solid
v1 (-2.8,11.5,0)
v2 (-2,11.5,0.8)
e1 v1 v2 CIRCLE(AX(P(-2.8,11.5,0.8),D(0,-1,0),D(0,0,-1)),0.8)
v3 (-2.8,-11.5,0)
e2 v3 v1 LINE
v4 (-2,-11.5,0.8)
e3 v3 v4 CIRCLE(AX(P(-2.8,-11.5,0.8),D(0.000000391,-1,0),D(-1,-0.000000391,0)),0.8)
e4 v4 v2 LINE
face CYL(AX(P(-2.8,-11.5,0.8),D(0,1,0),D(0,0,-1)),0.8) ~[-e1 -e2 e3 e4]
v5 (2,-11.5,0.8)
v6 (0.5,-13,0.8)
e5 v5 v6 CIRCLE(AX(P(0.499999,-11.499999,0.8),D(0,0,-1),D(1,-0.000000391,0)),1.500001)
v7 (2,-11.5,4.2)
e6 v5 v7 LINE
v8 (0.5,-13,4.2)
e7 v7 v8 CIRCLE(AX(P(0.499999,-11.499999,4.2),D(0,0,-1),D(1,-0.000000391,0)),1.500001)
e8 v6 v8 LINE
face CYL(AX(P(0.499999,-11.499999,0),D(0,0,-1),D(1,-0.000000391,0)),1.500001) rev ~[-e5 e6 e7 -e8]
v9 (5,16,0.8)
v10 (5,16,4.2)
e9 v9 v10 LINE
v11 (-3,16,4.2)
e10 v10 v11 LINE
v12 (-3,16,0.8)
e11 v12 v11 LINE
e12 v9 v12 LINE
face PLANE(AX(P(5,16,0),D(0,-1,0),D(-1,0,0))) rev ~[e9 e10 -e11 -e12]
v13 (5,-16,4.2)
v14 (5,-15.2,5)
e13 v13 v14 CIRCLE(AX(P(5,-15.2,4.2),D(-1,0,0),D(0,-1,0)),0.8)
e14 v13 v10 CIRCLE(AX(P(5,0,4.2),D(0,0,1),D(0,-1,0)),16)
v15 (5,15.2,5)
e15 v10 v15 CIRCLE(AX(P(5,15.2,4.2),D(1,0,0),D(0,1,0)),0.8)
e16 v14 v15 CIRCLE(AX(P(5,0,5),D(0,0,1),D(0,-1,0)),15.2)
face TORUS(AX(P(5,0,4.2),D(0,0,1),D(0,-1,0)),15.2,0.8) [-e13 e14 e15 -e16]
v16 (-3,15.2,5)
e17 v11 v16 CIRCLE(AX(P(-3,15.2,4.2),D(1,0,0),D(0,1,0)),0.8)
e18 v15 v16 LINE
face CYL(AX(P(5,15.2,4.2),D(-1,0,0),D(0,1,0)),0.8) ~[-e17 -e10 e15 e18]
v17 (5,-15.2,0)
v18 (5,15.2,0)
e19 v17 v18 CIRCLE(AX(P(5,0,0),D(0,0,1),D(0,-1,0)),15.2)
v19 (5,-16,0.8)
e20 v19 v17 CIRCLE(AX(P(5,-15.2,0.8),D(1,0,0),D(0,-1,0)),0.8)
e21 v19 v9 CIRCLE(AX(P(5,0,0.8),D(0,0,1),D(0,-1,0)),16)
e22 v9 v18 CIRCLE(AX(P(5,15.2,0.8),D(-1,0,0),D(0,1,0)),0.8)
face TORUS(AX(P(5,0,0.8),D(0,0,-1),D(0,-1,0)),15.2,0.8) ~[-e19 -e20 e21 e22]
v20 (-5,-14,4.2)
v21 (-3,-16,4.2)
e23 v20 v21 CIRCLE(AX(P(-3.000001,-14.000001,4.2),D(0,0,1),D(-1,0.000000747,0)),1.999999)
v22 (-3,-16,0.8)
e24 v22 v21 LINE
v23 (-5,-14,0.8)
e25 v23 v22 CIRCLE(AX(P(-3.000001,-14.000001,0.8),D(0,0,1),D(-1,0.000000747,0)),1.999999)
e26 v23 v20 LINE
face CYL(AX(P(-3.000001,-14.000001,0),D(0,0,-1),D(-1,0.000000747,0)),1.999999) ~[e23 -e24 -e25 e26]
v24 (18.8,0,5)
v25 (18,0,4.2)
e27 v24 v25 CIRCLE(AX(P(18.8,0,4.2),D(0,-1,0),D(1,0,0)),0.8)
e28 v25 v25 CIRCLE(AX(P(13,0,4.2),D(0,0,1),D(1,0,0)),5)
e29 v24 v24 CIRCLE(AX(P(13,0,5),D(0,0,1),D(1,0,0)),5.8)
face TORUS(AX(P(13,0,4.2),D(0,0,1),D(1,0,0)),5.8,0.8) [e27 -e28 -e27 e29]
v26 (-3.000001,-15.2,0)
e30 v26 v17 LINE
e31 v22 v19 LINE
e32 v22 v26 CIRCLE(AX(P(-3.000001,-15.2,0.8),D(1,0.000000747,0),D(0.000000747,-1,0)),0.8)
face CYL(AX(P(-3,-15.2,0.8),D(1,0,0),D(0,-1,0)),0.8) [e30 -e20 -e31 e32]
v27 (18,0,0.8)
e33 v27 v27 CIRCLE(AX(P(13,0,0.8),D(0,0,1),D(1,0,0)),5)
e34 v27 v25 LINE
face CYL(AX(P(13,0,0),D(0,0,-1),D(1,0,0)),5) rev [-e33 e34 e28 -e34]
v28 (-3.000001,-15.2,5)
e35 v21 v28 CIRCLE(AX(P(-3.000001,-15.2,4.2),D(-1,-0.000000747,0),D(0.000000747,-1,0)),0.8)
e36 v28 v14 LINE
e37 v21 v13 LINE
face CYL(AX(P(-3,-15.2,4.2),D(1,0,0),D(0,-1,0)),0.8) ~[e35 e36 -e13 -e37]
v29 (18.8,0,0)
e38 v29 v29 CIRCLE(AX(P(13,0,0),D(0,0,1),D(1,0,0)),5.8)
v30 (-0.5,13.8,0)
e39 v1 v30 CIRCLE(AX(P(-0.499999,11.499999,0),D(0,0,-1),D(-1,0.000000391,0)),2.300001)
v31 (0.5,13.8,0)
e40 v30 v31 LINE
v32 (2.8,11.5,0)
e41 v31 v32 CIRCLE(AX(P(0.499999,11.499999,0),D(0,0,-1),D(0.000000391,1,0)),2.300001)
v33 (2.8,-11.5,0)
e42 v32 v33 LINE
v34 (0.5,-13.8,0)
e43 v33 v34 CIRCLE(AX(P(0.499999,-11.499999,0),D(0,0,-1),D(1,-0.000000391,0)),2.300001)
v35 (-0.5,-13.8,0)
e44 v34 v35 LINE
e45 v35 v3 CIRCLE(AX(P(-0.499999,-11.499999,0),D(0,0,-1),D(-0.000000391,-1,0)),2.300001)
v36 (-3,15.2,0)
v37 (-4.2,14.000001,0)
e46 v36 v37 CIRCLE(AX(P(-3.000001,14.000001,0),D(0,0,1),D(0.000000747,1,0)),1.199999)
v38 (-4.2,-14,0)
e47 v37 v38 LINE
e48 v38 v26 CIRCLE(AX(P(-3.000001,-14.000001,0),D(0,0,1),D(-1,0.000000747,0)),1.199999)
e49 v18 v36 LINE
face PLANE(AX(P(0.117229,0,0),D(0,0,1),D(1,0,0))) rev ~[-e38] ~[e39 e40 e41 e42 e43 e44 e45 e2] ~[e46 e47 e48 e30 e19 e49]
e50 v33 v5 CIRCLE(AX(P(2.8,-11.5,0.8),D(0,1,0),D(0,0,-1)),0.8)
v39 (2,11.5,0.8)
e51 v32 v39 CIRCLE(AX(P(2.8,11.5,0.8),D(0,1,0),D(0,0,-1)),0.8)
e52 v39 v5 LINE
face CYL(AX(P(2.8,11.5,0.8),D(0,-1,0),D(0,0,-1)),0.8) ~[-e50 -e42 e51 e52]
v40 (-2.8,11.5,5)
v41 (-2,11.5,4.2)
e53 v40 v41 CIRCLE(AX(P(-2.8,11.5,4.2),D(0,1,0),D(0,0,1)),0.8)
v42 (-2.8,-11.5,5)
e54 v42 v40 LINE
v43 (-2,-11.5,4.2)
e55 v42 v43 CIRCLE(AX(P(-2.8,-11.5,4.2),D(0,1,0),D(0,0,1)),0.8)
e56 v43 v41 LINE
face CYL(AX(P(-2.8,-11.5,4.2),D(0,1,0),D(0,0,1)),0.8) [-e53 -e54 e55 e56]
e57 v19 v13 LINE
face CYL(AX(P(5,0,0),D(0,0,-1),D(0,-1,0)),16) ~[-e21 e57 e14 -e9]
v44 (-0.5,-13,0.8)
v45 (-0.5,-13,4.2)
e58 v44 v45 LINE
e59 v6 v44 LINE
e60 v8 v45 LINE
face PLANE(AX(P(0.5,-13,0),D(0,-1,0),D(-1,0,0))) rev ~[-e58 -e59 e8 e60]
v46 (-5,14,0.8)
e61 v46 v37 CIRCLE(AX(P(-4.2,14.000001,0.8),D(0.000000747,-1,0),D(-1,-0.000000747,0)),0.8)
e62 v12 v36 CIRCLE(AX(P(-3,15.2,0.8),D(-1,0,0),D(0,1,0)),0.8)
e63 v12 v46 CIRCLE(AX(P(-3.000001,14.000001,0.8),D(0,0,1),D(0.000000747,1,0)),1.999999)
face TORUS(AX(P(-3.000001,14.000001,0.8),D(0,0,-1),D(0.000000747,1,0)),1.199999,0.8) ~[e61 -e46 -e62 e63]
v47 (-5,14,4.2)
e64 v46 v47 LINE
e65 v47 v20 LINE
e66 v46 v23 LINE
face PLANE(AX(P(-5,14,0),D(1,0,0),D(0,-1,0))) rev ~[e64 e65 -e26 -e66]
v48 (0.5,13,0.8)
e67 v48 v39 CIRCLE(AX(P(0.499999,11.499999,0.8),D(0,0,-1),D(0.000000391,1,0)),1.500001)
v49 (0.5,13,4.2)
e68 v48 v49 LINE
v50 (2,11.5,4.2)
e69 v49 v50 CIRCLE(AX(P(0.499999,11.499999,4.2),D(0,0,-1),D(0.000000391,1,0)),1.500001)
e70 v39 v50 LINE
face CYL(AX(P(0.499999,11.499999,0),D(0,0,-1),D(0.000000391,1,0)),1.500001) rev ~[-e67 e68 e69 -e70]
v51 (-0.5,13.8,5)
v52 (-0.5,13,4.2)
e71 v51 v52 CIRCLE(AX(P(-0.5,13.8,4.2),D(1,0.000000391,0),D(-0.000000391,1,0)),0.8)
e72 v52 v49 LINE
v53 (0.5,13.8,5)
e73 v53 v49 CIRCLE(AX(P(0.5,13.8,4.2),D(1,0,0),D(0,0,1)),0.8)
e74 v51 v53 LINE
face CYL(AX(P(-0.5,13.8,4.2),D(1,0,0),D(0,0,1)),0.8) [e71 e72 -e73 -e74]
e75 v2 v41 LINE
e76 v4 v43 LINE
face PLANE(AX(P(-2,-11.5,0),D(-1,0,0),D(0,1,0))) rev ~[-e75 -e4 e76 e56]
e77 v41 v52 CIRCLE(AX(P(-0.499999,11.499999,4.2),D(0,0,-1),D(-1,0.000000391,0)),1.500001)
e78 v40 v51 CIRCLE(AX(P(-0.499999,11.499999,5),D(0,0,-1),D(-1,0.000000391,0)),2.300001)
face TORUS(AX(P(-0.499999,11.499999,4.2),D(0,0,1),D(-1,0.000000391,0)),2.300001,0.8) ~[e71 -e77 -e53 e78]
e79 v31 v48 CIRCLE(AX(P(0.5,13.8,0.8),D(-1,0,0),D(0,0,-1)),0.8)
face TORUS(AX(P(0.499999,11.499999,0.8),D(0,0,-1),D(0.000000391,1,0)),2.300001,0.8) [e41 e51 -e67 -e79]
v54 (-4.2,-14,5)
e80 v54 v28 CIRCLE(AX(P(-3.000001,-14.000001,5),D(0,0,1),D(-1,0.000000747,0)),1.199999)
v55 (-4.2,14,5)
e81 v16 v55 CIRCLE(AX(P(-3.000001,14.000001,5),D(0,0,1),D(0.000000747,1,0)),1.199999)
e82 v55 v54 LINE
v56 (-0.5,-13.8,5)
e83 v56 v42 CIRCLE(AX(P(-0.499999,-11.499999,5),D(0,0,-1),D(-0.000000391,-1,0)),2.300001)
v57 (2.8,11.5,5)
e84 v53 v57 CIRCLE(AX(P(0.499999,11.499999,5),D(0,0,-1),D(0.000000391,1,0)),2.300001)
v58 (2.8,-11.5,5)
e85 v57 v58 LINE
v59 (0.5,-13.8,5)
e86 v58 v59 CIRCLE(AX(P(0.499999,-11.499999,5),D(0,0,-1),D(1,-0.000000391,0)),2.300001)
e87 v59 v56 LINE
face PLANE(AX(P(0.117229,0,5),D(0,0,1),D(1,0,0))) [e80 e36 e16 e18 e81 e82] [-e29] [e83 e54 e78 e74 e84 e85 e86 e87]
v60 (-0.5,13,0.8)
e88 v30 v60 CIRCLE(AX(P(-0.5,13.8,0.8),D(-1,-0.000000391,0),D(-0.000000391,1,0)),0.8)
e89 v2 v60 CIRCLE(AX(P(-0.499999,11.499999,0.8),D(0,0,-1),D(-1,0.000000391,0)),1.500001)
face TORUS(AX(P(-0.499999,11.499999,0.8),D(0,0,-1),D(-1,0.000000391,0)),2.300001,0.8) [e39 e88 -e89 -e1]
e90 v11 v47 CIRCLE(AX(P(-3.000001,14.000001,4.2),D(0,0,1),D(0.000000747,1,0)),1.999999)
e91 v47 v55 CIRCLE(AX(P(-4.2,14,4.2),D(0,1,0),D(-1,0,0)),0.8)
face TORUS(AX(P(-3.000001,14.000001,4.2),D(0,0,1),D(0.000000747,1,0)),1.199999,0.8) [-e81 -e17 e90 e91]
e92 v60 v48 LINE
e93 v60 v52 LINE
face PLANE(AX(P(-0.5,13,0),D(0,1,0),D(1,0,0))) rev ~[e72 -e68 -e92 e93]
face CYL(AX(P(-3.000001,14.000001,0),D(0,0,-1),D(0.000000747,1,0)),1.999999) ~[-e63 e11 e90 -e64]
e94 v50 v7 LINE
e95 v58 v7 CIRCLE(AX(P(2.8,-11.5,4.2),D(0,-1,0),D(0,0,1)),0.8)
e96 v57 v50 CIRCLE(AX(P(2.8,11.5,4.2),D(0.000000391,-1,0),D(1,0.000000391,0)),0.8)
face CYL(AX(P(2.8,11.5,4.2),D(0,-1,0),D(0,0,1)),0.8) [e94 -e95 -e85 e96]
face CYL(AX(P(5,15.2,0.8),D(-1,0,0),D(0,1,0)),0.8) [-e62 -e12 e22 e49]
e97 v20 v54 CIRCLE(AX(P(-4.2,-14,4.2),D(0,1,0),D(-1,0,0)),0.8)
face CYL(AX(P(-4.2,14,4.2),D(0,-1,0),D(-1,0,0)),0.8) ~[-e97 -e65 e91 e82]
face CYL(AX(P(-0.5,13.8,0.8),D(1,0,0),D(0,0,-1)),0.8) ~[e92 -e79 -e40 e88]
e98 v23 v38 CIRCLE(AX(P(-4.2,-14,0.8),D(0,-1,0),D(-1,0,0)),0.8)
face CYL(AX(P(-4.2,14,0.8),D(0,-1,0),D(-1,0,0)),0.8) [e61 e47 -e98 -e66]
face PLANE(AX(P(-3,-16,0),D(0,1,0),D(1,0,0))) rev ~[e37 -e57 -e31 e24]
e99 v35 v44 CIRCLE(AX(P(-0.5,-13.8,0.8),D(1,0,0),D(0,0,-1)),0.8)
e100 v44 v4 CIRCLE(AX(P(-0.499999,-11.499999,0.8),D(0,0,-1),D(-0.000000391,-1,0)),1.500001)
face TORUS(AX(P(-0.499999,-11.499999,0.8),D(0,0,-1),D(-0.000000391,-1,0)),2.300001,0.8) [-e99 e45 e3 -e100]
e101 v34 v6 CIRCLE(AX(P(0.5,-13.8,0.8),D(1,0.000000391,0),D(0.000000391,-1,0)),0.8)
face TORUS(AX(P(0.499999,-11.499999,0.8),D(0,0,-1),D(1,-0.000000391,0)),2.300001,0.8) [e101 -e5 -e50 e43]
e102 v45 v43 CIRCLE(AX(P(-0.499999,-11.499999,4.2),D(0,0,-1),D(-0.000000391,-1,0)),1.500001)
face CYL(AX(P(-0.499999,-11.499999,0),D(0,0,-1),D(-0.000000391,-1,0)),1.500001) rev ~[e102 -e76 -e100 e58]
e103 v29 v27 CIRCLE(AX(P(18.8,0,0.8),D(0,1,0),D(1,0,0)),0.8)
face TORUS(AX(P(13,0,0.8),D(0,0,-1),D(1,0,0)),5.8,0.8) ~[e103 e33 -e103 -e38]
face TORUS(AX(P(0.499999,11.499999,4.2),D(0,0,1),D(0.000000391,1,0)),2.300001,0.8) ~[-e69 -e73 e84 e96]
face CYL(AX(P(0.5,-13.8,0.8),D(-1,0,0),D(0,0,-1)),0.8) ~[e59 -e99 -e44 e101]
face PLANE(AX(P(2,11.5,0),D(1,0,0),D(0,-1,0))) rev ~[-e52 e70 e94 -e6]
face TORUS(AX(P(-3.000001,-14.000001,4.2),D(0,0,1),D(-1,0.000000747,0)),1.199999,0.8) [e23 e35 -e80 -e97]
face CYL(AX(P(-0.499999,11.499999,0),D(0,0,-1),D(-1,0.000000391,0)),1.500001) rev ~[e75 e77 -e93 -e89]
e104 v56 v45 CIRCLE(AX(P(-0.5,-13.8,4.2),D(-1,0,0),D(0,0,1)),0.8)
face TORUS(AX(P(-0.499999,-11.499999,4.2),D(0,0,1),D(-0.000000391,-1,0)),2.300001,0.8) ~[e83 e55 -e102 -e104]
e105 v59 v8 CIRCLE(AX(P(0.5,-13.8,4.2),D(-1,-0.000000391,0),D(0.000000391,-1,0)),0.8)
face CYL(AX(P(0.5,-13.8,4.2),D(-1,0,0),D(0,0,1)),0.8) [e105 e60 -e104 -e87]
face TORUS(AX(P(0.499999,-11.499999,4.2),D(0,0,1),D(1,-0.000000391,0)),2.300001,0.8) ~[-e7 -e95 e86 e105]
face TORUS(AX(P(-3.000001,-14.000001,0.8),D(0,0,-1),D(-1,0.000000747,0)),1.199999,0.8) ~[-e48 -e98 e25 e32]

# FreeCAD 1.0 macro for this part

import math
import FreeCAD as App
import Part
import Sketcher
from FreeCAD import Vector


def edges_at(feature, points):
    """Names of the edges that pass closest to the given points."""
    edges = feature.Shape.Edges
    near = lambda p: min(range(len(edges)), key=lambda i: edges[i].distToShape(Part.Vertex(*p))[0])
    return sorted({f"Edge{near(p) + 1}" for p in points})

doc = App.newDocument("Part")
body = doc.addObject("PartDesign::Body", "Body")

# Sketch on XY plane
sketch1 = body.newObject("Sketcher::SketchObject", "Sketch")
sketch1.AttachmentSupport = (doc.getObject("XY_Plane"), [""])
sketch1.MapMode = "FlatFace"
sketch1.addGeometry([
    Part.LineSegment(Vector(-3, -16, 0), Vector(5, -16, 0)),  # 0
    Part.ArcOfCircle(Part.Circle(Vector(5, 0, 0), Vector(0, 0, 1), 16), math.radians(-90), math.radians(90)),  # 1
    Part.LineSegment(Vector(5, 16, 0), Vector(-3, 16, 0)),  # 2
    Part.ArcOfCircle(Part.Circle(Vector(-3, 14, 0), Vector(0, 0, 1), 2), math.radians(90), math.radians(180)),  # 3
    Part.LineSegment(Vector(-5, 14, 0), Vector(-5, -14, 0)),  # 4
    Part.ArcOfCircle(Part.Circle(Vector(-3, -14, 0), Vector(0, 0, 1), 2), math.radians(180), math.radians(270)),  # 5
    Part.ArcOfCircle(Part.Circle(Vector(0.5, -11.5, 0), Vector(0, 0, 1), 1.5), math.radians(-90), math.radians(0)),  # 6
    Part.LineSegment(Vector(0.5, -13, 0), Vector(-0.5, -13, 0)),  # 7
    Part.ArcOfCircle(Part.Circle(Vector(-0.5, -11.5, 0), Vector(0, 0, 1), 1.5), math.radians(-180), math.radians(-90)),  # 8
    Part.LineSegment(Vector(-2, -11.5, 0), Vector(-2, 11.5, 0)),  # 9
    Part.ArcOfCircle(Part.Circle(Vector(-0.5, 11.5, 0), Vector(0, 0, 1), 1.5), math.radians(90), math.radians(180)),  # 10
    Part.LineSegment(Vector(-0.5, 13, 0), Vector(0.5, 13, 0)),  # 11
    Part.ArcOfCircle(Part.Circle(Vector(0.5, 11.5, 0), Vector(0, 0, 1), 1.5), math.radians(0), math.radians(90)),  # 12
    Part.LineSegment(Vector(2, 11.5, 0), Vector(2, -11.5, 0)),  # 13
    Part.Circle(Vector(13, 0, 0), Vector(0, 0, 1), 5),  # 14
], False)
sketch1.addConstraint([
    Sketcher.Constraint("Tangent", 0, 2, 1, 1),
    Sketcher.Constraint("Tangent", 1, 2, 2, 1),
    Sketcher.Constraint("Tangent", 2, 2, 3, 1),
    Sketcher.Constraint("Tangent", 3, 2, 4, 1),
    Sketcher.Constraint("Tangent", 4, 2, 5, 1),
    Sketcher.Constraint("Tangent", 5, 2, 0, 1),
    Sketcher.Constraint("Tangent", 6, 1, 7, 1),
    Sketcher.Constraint("Tangent", 7, 2, 8, 2),
    Sketcher.Constraint("Tangent", 8, 1, 9, 1),
    Sketcher.Constraint("Tangent", 9, 2, 10, 2),
    Sketcher.Constraint("Tangent", 10, 1, 11, 1),
    Sketcher.Constraint("Tangent", 11, 2, 12, 2),
    Sketcher.Constraint("Tangent", 12, 1, 13, 1),
    Sketcher.Constraint("Tangent", 13, 2, 6, 2),
    Sketcher.Constraint("Horizontal", 0),
    Sketcher.Constraint("Horizontal", 2),
    Sketcher.Constraint("Vertical", 4),
    Sketcher.Constraint("Horizontal", 7),
    Sketcher.Constraint("Vertical", 9),
    Sketcher.Constraint("Horizontal", 11),
    Sketcher.Constraint("Vertical", 13),
    Sketcher.Constraint("Equal", 3, 5),
    Sketcher.Constraint("Equal", 6, 8),
    Sketcher.Constraint("Equal", 8, 10),
    Sketcher.Constraint("Equal", 10, 12),
    Sketcher.Constraint("Symmetric", 6, 3, 10, 3, -1, 1),
    Sketcher.Constraint("PointOnObject", 1, 3, -1),
    Sketcher.Constraint("PointOnObject", 14, 3, -1),
    Sketcher.Constraint("Diameter", 14, 10.0),
    Sketcher.Constraint("Radius", 1, 16.0),
    Sketcher.Constraint("Radius", 3, 1.999999),
    Sketcher.Constraint("Radius", 6, 1.500001),
    Sketcher.Constraint("DistanceX", 0, 1, 0, 2, 8.0),
    Sketcher.Constraint("DistanceX", 7, 2, 7, 1, 1.0),
    Sketcher.Constraint("DistanceY", 9, 1, 9, 2, 23.0),
    Sketcher.Constraint("DistanceX", -1, 1, 1, 3, 5.0),
    Sketcher.Constraint("DistanceX", -1, 1, 14, 3, 13.0),
])
pad1 = body.newObject("PartDesign::Pad", "Pad")
pad1.Profile = sketch1
pad1.Length = 5
doc.recompute()

fillet = body.newObject("PartDesign::Fillet", "Fillet")
fillet.Base = (pad1, edges_at(pad1, [(-5, 0, 5), (21, 0, 0)]))
fillet.Radius = 0.8
doc.recompute()

fillet2 = body.newObject("PartDesign::Fillet", "Fillet001")
fillet2.Base = (fillet, edges_at(fillet, [
    (-2, 0, 5),
    (8, 0, 5),
    (2, 0, 0),
    (8, 0, 0),
]))
fillet2.Radius = 0.8

doc.recompute()
